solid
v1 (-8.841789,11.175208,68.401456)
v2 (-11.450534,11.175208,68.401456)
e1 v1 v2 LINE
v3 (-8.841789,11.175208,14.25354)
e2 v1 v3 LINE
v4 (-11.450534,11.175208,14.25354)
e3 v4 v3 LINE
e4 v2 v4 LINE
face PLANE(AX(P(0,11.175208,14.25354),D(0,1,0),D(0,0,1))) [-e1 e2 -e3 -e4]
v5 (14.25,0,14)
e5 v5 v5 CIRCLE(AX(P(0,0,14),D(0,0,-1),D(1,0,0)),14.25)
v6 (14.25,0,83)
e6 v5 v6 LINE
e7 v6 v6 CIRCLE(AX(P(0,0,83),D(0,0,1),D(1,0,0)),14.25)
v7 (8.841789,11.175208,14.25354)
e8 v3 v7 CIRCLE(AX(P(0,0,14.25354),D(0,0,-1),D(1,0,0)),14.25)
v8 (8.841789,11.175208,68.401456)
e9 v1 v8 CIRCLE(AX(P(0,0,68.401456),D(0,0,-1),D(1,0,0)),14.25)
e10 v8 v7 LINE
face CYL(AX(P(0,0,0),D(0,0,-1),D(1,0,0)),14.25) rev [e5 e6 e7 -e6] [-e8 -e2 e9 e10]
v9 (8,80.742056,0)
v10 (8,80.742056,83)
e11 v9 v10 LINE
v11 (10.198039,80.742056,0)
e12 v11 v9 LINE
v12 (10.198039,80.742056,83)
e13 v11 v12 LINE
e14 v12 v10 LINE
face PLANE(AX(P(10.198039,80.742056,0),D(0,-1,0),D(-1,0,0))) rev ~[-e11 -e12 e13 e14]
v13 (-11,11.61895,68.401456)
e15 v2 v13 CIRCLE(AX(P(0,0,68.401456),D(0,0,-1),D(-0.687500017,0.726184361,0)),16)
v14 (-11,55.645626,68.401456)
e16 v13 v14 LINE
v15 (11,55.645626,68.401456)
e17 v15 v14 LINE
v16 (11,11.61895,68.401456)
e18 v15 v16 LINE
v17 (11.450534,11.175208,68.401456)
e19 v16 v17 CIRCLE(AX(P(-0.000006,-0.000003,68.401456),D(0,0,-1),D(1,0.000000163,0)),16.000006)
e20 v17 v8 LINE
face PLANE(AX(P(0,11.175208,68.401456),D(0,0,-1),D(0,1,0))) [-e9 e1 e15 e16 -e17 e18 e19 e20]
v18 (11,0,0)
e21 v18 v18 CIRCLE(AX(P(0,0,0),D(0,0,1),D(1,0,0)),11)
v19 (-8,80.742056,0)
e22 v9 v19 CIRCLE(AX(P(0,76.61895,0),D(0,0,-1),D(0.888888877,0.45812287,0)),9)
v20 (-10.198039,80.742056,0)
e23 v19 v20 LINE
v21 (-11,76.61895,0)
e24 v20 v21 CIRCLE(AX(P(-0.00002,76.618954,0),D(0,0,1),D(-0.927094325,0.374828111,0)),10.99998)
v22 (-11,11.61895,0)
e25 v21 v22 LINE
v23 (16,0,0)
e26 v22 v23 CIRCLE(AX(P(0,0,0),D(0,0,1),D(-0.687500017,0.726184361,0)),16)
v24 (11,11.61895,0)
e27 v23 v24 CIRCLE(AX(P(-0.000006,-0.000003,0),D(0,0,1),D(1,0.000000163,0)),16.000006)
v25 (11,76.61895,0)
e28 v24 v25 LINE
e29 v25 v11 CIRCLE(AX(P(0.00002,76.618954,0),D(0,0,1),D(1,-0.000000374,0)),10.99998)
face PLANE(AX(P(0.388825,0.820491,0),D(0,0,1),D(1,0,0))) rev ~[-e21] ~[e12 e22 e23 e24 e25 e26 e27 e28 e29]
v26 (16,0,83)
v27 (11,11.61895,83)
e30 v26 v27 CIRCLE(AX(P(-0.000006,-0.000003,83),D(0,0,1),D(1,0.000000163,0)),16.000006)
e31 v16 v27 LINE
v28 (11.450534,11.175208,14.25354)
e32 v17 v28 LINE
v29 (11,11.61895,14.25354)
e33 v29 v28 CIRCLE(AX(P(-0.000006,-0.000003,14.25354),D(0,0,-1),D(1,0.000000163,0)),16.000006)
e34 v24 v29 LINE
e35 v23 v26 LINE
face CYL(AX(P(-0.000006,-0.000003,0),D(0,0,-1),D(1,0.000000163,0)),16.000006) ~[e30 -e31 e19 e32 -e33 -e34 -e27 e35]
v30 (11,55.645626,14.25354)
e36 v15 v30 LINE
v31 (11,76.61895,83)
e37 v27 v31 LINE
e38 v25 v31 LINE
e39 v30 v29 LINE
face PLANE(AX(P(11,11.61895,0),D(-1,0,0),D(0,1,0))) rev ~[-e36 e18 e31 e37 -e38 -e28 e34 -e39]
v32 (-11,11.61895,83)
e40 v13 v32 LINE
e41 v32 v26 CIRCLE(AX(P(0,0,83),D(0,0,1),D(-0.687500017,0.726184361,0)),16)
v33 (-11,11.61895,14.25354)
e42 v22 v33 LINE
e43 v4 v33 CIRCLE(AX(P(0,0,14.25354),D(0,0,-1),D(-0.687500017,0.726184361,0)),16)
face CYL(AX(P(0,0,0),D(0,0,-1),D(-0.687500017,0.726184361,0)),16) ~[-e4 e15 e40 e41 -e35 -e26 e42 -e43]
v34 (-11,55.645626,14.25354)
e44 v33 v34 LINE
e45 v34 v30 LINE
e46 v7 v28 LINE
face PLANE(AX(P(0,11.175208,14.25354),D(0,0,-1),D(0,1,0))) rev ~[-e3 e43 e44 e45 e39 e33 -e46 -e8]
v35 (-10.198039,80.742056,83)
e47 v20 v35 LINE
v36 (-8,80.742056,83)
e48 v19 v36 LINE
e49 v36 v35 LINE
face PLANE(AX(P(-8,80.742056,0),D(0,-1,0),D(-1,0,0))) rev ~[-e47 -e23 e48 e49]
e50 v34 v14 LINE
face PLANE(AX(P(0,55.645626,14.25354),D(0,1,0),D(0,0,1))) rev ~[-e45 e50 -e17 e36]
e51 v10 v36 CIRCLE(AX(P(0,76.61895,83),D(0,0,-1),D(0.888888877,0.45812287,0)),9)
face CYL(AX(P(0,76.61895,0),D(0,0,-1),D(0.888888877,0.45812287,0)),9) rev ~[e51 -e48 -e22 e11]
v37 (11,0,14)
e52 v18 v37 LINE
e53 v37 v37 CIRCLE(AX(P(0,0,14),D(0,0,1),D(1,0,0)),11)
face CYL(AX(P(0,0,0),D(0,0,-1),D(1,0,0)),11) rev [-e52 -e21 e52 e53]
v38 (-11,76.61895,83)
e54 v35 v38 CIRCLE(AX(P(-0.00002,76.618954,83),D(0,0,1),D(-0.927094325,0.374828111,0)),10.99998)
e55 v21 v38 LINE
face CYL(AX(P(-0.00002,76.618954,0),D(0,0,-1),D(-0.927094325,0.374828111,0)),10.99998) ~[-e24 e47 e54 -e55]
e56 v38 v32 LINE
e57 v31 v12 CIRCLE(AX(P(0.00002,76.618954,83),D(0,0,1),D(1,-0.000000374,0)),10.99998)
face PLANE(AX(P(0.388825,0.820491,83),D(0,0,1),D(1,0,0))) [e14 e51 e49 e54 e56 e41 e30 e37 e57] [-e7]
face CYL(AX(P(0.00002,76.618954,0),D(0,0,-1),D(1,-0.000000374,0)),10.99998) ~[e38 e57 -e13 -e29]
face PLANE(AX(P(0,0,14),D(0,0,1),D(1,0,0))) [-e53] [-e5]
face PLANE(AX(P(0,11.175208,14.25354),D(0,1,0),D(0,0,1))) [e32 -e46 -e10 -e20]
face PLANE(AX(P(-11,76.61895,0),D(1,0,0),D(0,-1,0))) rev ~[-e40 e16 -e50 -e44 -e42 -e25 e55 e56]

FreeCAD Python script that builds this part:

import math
import FreeCAD as App
import Part
import Sketcher
Q = App.Units.Quantity

doc = App.newDocument("Part")
params = doc.addObject("Spreadsheet::Sheet", "Params")
for row, (alias, value) in enumerate([
    ("sketch1_radius", "16 mm"),
    ("sketch1_radius2", "9 mm"),
    ("sketch1_diameter", "28.5 mm"),
    ("sketch1_height", "65 mm"),
    ("pad1_length", "83 mm"),
    ("pocket1_length", "25 mm"),
    ("sketch3_diameter", "22 mm"),
    ("pad2_length", "14 mm"),
], start=1):
    params.set(f"A{row}", alias)
    params.set(f"B{row}", "=" + value)
    params.setAlias(f"B{row}", alias)

body = doc.addObject("PartDesign::Body", "Body")

sketch1 = doc.addObject("Sketcher::SketchObject", "Sketch")
body.addObject(sketch1)
sketch1.AttachmentSupport = (doc.XY_Plane, [""])
sketch1.MapMode = "FlatFace"
sketch1.addGeometry([
    Part.ArcOfCircle(Part.Circle(App.Vector(0, 0, 0), App.Vector(0, 0, 1), 16), math.radians(133.432538), math.radians(359.999999)),
    Part.ArcOfCircle(Part.Circle(App.Vector(-0.000006, -0.000003, 0), App.Vector(0, 0, 1), 16.000006), math.radians(0.000009), math.radians(46.567454)),
    Part.LineSegment(App.Vector(11, 11.61895, 0), App.Vector(11, 76.61895, 0)),
    Part.ArcOfCircle(Part.Circle(App.Vector(0.00002, 76.618954, 0), App.Vector(0, 0, 1), 10.99998), math.radians(-0.000021), math.radians(22.013689)),
    Part.LineSegment(App.Vector(10.198039, 80.742056, 0), App.Vector(8, 80.742056, 0)),
    Part.ArcOfCircle(Part.Circle(App.Vector(0, 76.61895, 0), App.Vector(0, 0, 1), 9), math.radians(152.733954), math.radians(387.266046)),
    Part.LineSegment(App.Vector(-8, 80.742056, 0), App.Vector(-10.198039, 80.742056, 0)),
    Part.ArcOfCircle(Part.Circle(App.Vector(-0.00002, 76.618954, 0), App.Vector(0, 0, 1), 10.99998), math.radians(157.986311), math.radians(180.000021)),
    Part.LineSegment(App.Vector(-11, 76.61895, 0), App.Vector(-11, 11.61895, 0)),
    Part.Circle(App.Vector(0, 0, 0), App.Vector(0, 0, 1), 14.25),
], False)
sketch1.addConstraint([
    Sketcher.Constraint("Tangent", 0, 2, 1, 1),
    Sketcher.Constraint("Coincident", 1, 2, 2, 1),
    Sketcher.Constraint("Tangent", 2, 2, 3, 1),
    Sketcher.Constraint("Coincident", 3, 2, 4, 1),
    Sketcher.Constraint("Coincident", 4, 2, 5, 2),
    Sketcher.Constraint("Coincident", 5, 1, 6, 1),
    Sketcher.Constraint("Coincident", 6, 2, 7, 1),
    Sketcher.Constraint("Tangent", 7, 2, 8, 1),
    Sketcher.Constraint("Coincident", 8, 2, 0, 1),
    Sketcher.Constraint("Vertical", 2),
    Sketcher.Constraint("Horizontal", 4),
    Sketcher.Constraint("Horizontal", 6),
    Sketcher.Constraint("Vertical", 8),
    Sketcher.Constraint("Coincident", 0, 3, -1, 1),
    Sketcher.Constraint("Coincident", 9, 3, -1, 1),
    Sketcher.Constraint("Equal", 3, 7),
    Sketcher.Constraint("Symmetric", 3, 3, 7, 3, -2),
    Sketcher.Constraint("Symmetric", 4, 2, 5, 1, -2),
    Sketcher.Constraint("PointOnObject", 0, 2, -1),
    Sketcher.Constraint("Horizontal", 5, 3, 2, 2),
    Sketcher.Constraint("Horizontal", 1, 2, 8, 2),
    Sketcher.Constraint("Radius", 0, Q("16 mm")),
    Sketcher.Constraint("Radius", 5, Q("9 mm")),
    Sketcher.Constraint("Diameter", 9, Q("28.5 mm")),
    Sketcher.Constraint("DistanceY", 2, 1, 2, 2, Q("65 mm")),
    Sketcher.Constraint("DistanceX", -1, 1, 1, 2, Q("11 mm")),
    Sketcher.Constraint("DistanceX", -1, 1, 4, 2, Q("8 mm")),
    Sketcher.Constraint("Radius", 3, Q("10.99998 mm")),
])
sketch1.setExpression("Constraints[21]", "Params.sketch1_radius")
sketch1.setExpression("Constraints[22]", "Params.sketch1_radius2")
sketch1.setExpression("Constraints[23]", "Params.sketch1_diameter")
sketch1.setExpression("Constraints[24]", "Params.sketch1_height")
pad1 = doc.addObject("PartDesign::Pad", "Pad")
body.addObject(pad1)
pad1.Profile = sketch1
pad1.setExpression("Length", "Params.pad1_length")

sketch2 = doc.addObject("Sketcher::SketchObject", "Sketch001")
body.addObject(sketch2)
sketch2.AttachmentSupport = (doc.YZ_Plane, [""])
sketch2.MapMode = "FlatFace"
sketch2.addGeometry([
    Part.LineSegment(App.Vector(11.175208, 68.401456, 0), App.Vector(11.175208, 14.25354, 0)),
    Part.LineSegment(App.Vector(11.175208, 14.25354, 0), App.Vector(55.645626, 14.25354, 0)),
    Part.LineSegment(App.Vector(55.645626, 14.25354, 0), App.Vector(55.645626, 68.401456, 0)),
    Part.LineSegment(App.Vector(55.645626, 68.401456, 0), App.Vector(11.175208, 68.401456, 0)),
], False)
sketch2.addConstraint([
    Sketcher.Constraint("Coincident", 0, 2, 1, 1),
    Sketcher.Constraint("Coincident", 1, 2, 2, 1),
    Sketcher.Constraint("Coincident", 2, 2, 3, 1),
    Sketcher.Constraint("Coincident", 3, 2, 0, 1),
    Sketcher.Constraint("Vertical", 0),
    Sketcher.Constraint("Horizontal", 1),
    Sketcher.Constraint("Vertical", 2),
    Sketcher.Constraint("Horizontal", 3),
    Sketcher.Constraint("DistanceX", 1, 1, 1, 2, Q("44.470418 mm")),
    Sketcher.Constraint("DistanceY", 0, 2, 0, 1, Q("54.147916 mm")),
    Sketcher.Constraint("DistanceY", -1, 1, 0, 2, Q("14.25354 mm")),
    Sketcher.Constraint("DistanceX", -1, 1, 0, 2, Q("11.175208 mm")),
])
pocket1 = doc.addObject("PartDesign::Pocket", "Pocket")
body.addObject(pocket1)
pocket1.Profile = sketch2
pocket1.setExpression("Length", "Params.pocket1_length")
pocket1.Midplane = True

sketch3 = doc.addObject("Sketcher::SketchObject", "Sketch002")
body.addObject(sketch3)
sketch3.AttachmentSupport = (doc.XY_Plane, [""])
sketch3.MapMode = "FlatFace"
sketch3.addGeometry([
    Part.Circle(App.Vector(0, 0, 0), App.Vector(0, 0, 1), 14.971262),
    Part.Circle(App.Vector(0, 0, 0), App.Vector(0, 0, 1), 11),
], False)
sketch3.addConstraint([
    Sketcher.Constraint("Coincident", 0, 3, -1, 1),
    Sketcher.Constraint("Coincident", 1, 3, -1, 1),
    Sketcher.Constraint("Diameter", 1, Q("22 mm")),
    Sketcher.Constraint("Diameter", 0, Q("29.942524 mm")),
])
sketch3.setExpression("Constraints[2]", "Params.sketch3_diameter")
pad2 = doc.addObject("PartDesign::Pad", "Pad001")
body.addObject(pad2)
pad2.Profile = sketch3
pad2.setExpression("Length", "Params.pad2_length")

doc.recompute()
